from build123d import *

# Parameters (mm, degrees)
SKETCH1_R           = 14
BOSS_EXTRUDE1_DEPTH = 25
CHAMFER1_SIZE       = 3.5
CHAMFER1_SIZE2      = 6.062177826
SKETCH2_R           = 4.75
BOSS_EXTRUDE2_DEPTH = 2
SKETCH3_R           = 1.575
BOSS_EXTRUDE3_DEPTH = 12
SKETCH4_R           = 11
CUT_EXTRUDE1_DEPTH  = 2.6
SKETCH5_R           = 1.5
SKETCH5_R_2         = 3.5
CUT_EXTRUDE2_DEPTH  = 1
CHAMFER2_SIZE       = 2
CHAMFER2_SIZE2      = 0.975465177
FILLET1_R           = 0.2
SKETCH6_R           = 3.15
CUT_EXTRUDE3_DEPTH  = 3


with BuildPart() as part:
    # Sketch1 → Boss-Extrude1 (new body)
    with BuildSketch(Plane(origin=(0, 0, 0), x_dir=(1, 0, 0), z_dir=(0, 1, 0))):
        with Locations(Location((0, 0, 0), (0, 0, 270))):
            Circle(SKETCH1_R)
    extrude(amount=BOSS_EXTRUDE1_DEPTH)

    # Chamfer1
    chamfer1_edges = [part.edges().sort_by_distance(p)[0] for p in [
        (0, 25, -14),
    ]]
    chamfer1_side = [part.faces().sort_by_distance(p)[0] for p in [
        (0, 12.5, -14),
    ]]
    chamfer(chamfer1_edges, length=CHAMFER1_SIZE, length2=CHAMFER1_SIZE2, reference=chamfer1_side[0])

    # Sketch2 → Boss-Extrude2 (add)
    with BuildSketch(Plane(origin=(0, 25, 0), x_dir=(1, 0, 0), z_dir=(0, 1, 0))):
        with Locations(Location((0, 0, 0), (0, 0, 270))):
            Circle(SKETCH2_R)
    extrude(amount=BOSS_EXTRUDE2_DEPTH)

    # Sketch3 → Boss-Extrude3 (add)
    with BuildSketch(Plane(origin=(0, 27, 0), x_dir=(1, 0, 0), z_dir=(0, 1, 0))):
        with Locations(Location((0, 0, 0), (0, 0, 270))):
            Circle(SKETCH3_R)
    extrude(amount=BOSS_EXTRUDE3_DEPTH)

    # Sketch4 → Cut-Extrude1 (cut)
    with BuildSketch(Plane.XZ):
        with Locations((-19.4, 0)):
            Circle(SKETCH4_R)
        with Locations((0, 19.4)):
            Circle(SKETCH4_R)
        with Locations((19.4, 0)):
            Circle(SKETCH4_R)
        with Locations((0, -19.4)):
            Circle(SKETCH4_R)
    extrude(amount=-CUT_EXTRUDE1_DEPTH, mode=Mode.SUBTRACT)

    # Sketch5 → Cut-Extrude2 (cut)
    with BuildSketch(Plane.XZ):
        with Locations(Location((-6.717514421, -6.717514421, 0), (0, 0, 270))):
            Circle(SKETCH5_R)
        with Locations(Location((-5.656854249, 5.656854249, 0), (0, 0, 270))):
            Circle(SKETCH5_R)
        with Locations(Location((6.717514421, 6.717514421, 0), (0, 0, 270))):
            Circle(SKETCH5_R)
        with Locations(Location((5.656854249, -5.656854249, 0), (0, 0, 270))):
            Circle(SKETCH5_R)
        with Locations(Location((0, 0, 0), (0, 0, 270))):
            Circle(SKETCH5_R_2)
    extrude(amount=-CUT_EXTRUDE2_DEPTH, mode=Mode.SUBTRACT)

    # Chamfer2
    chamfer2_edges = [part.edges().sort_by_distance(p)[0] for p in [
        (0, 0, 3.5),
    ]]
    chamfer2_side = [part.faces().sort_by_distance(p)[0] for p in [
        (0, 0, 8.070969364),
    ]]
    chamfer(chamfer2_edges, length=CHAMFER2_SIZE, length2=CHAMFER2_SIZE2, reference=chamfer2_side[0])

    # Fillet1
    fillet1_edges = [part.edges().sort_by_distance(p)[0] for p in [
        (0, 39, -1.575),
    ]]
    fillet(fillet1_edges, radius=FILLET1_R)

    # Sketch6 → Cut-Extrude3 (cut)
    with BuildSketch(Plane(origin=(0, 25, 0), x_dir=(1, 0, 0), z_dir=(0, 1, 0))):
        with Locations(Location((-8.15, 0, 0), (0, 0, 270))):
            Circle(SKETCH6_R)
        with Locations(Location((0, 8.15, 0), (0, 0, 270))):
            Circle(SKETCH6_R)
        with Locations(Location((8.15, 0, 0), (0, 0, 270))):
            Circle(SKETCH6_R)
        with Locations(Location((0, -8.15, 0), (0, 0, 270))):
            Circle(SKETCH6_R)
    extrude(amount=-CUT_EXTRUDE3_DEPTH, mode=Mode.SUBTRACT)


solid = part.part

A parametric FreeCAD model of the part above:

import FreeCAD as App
import Part
import Sketcher
from FreeCAD import Vector
Q = App.Units.Quantity


def edges_at(feature, points):
    """Names of the edges that pass closest to the given points."""
    edges = feature.Shape.Edges
    near = lambda p: min(range(len(edges)), key=lambda i: edges[i].distToShape(Part.Vertex(*p))[0])
    return sorted({f"Edge{near(p) + 1}" for p in points})

doc = App.newDocument("Part")
body = doc.addObject("PartDesign::Body", "Body")

sketch1 = body.newObject("Sketcher::SketchObject", "Sketch")
sketch1.AttachmentSupport = (doc.getObject("XZ_Plane"), [""])
sketch1.MapMode = "FlatFace"
sketch1.addGeometry(Part.Circle(Vector(0, 0, 0), Vector(0, 0, 1), 14), False)
sketch1.addConstraint(Sketcher.Constraint("Coincident", 0, 3, -1, 1))
sketch1.addConstraint(Sketcher.Constraint("Diameter", 0, Q("28 mm")))
pad1 = body.newObject("PartDesign::Pad", "Pad")
pad1.Profile = sketch1
pad1.Length = 25
pad1.Reversed = True
doc.recompute()

chamfer = body.newObject("PartDesign::Chamfer", "Chamfer")
chamfer.Base = (pad1, edges_at(pad1, [(0, 25, -14)]))
chamfer.ChamferType = "Two distances"
chamfer.Size = 3.5
chamfer.Size2 = 6.062178

sketch2 = body.newObject("Sketcher::SketchObject", "Sketch001")
sketch2.AttachmentSupport = (doc.getObject("XZ_Plane"), [""])
sketch2.MapMode = "FlatFace"
sketch2.AttachmentOffset = App.Placement(Vector(0, 0, -25), App.Rotation())
sketch2.addGeometry(Part.Circle(Vector(0, 0, 0), Vector(0, 0, 1), 4.8), False)
sketch2.addConstraint(Sketcher.Constraint("Coincident", 0, 3, -1, 1))
sketch2.addConstraint(Sketcher.Constraint("Diameter", 0, Q("9.5 mm")))
pad2 = body.newObject("PartDesign::Pad", "Pad001")
pad2.Profile = sketch2
pad2.Length = 2
pad2.Reversed = True

sketch3 = body.newObject("Sketcher::SketchObject", "Sketch002")
sketch3.AttachmentSupport = (doc.getObject("XZ_Plane"), [""])
sketch3.MapMode = "FlatFace"
sketch3.AttachmentOffset = App.Placement(Vector(0, 0, -27), App.Rotation())
sketch3.addGeometry(Part.Circle(Vector(0, 0, 0), Vector(0, 0, 1), 1.6), False)
sketch3.addConstraint(Sketcher.Constraint("Coincident", 0, 3, -1, 1))
sketch3.addConstraint(Sketcher.Constraint("Diameter", 0, Q("3.15 mm")))
pad3 = body.newObject("PartDesign::Pad", "Pad002")
pad3.Profile = sketch3
pad3.Length = 12
pad3.Reversed = True

sketch4 = body.newObject("Sketcher::SketchObject", "Sketch003")
sketch4.AttachmentSupport = (doc.getObject("XZ_Plane"), [""])
sketch4.MapMode = "FlatFace"
sketch4.addGeometry(Part.Circle(Vector(-19, 0, 0), Vector(0, 0, 1), 11), False)
sketch4.addGeometry(Part.Circle(Vector(0, 19, 0), Vector(0, 0, 1), 11), False)
sketch4.addGeometry(Part.Circle(Vector(19, 0, 0), Vector(0, 0, 1), 11), False)
sketch4.addGeometry(Part.Circle(Vector(0, -19, 0), Vector(0, 0, 1), 11), False)
sketch4.addConstraint(Sketcher.Constraint("Equal", 0, 1))
sketch4.addConstraint(Sketcher.Constraint("Equal", 1, 2))
sketch4.addConstraint(Sketcher.Constraint("Equal", 2, 3))
sketch4.addConstraint(Sketcher.Constraint("Symmetric", 0, 3, 2, 3, -1, 1))
sketch4.addConstraint(Sketcher.Constraint("Symmetric", 1, 3, 3, 3, -1, 1))
sketch4.addConstraint(Sketcher.Constraint("PointOnObject", 0, 3, -1))
sketch4.addConstraint(Sketcher.Constraint("PointOnObject", 1, 3, -2))
sketch4.addConstraint(Sketcher.Constraint("Diameter", 0, Q("22 mm")))
sketch4.addConstraint(Sketcher.Constraint("DistanceX", 0, 3, -1, 1, Q("19.4 mm")))
sketch4.addConstraint(Sketcher.Constraint("DistanceY", -1, 1, 1, 3, Q("19.4 mm")))
pocket1 = body.newObject("PartDesign::Pocket", "Pocket")
pocket1.Profile = sketch4
pocket1.Length = 2.6

sketch5 = body.newObject("Sketcher::SketchObject", "Sketch004")
sketch5.AttachmentSupport = (doc.getObject("XZ_Plane"), [""])
sketch5.MapMode = "FlatFace"
sketch5.addGeometry(Part.Circle(Vector(-6.7, -6.7, 0), Vector(0, 0, 1), 1.5), False)
sketch5.addGeometry(Part.Circle(Vector(-5.7, 5.7, 0), Vector(0, 0, 1), 1.5), False)
sketch5.addGeometry(Part.Circle(Vector(6.7, 6.7, 0), Vector(0, 0, 1), 1.5), False)
sketch5.addGeometry(Part.Circle(Vector(5.7, -5.7, 0), Vector(0, 0, 1), 1.5), False)
sketch5.addGeometry(Part.Circle(Vector(0, 0, 0), Vector(0, 0, 1), 3.5), False)
sketch5.addConstraint(Sketcher.Constraint("Coincident", 4, 3, -1, 1))
sketch5.addConstraint(Sketcher.Constraint("Equal", 0, 1))
sketch5.addConstraint(Sketcher.Constraint("Equal", 1, 2))
sketch5.addConstraint(Sketcher.Constraint("Equal", 2, 3))
sketch5.addConstraint(Sketcher.Constraint("Symmetric", 0, 3, 2, 3, -1, 1))
sketch5.addConstraint(Sketcher.Constraint("Symmetric", 1, 3, 3, 3, -1, 1))
sketch5.addConstraint(Sketcher.Constraint("Diameter", 0, Q("3 mm")))
sketch5.addConstraint(Sketcher.Constraint("Diameter", 4, Q("7 mm")))
sketch5.addConstraint(Sketcher.Constraint("DistanceX", 0, 3, 1, 3, Q("1.06066 mm")))
sketch5.addConstraint(Sketcher.Constraint("DistanceY", 0, 3, 1, 3, Q("12.374369 mm")))
sketch5.addConstraint(Sketcher.Constraint("DistanceX", 1, 3, 2, 3, Q("12.374369 mm")))
sketch5.addConstraint(Sketcher.Constraint("DistanceY", 1, 3, 2, 3, Q("1.06066 mm")))
pocket2 = body.newObject("PartDesign::Pocket", "Pocket001")
pocket2.Profile = sketch5
pocket2.Length = 1
doc.recompute()

chamfer2 = body.newObject("PartDesign::Chamfer", "Chamfer001")
chamfer2.Base = (pocket2, edges_at(pocket2, [(0, 0, 3.5)]))
chamfer2.ChamferType = "Two distances"
chamfer2.Size = 2
chamfer2.Size2 = 0.975465
doc.recompute()

fillet = body.newObject("PartDesign::Fillet", "Fillet")
fillet.Base = (chamfer2, edges_at(chamfer2, [(0, 39, -1.575)]))
fillet.Radius = 0.2

sketch6 = body.newObject("Sketcher::SketchObject", "Sketch005")
sketch6.AttachmentSupport = (doc.getObject("XZ_Plane"), [""])
sketch6.MapMode = "FlatFace"
sketch6.AttachmentOffset = App.Placement(Vector(0, 0, -25), App.Rotation())
sketch6.addGeometry(Part.Circle(Vector(-8.2, 0, 0), Vector(0, 0, 1), 3.1), False)
sketch6.addGeometry(Part.Circle(Vector(0, -8.2, 0), Vector(0, 0, 1), 3.1), False)
sketch6.addGeometry(Part.Circle(Vector(8.2, 0, 0), Vector(0, 0, 1), 3.1), False)
sketch6.addGeometry(Part.Circle(Vector(0, 8.2, 0), Vector(0, 0, 1), 3.1), False)
sketch6.addConstraint(Sketcher.Constraint("Equal", 0, 1))
sketch6.addConstraint(Sketcher.Constraint("Equal", 1, 2))
sketch6.addConstraint(Sketcher.Constraint("Equal", 2, 3))
sketch6.addConstraint(Sketcher.Constraint("Symmetric", 0, 3, 2, 3, -1, 1))
sketch6.addConstraint(Sketcher.Constraint("Symmetric", 1, 3, 3, 3, -1, 1))
sketch6.addConstraint(Sketcher.Constraint("PointOnObject", 0, 3, -1))
sketch6.addConstraint(Sketcher.Constraint("PointOnObject", 1, 3, -2))
sketch6.addConstraint(Sketcher.Constraint("Diameter", 0, Q("6.3 mm")))
sketch6.addConstraint(Sketcher.Constraint("DistanceX", 0, 3, 2, 3, Q("16.3 mm")))
sketch6.addConstraint(Sketcher.Constraint("DistanceY", 1, 3, 3, 3, Q("16.3 mm")))
pocket3 = body.newObject("PartDesign::Pocket", "Pocket002")
pocket3.Profile = sketch6
pocket3.Length = 3
pocket3.Reversed = True

doc.recompute()
